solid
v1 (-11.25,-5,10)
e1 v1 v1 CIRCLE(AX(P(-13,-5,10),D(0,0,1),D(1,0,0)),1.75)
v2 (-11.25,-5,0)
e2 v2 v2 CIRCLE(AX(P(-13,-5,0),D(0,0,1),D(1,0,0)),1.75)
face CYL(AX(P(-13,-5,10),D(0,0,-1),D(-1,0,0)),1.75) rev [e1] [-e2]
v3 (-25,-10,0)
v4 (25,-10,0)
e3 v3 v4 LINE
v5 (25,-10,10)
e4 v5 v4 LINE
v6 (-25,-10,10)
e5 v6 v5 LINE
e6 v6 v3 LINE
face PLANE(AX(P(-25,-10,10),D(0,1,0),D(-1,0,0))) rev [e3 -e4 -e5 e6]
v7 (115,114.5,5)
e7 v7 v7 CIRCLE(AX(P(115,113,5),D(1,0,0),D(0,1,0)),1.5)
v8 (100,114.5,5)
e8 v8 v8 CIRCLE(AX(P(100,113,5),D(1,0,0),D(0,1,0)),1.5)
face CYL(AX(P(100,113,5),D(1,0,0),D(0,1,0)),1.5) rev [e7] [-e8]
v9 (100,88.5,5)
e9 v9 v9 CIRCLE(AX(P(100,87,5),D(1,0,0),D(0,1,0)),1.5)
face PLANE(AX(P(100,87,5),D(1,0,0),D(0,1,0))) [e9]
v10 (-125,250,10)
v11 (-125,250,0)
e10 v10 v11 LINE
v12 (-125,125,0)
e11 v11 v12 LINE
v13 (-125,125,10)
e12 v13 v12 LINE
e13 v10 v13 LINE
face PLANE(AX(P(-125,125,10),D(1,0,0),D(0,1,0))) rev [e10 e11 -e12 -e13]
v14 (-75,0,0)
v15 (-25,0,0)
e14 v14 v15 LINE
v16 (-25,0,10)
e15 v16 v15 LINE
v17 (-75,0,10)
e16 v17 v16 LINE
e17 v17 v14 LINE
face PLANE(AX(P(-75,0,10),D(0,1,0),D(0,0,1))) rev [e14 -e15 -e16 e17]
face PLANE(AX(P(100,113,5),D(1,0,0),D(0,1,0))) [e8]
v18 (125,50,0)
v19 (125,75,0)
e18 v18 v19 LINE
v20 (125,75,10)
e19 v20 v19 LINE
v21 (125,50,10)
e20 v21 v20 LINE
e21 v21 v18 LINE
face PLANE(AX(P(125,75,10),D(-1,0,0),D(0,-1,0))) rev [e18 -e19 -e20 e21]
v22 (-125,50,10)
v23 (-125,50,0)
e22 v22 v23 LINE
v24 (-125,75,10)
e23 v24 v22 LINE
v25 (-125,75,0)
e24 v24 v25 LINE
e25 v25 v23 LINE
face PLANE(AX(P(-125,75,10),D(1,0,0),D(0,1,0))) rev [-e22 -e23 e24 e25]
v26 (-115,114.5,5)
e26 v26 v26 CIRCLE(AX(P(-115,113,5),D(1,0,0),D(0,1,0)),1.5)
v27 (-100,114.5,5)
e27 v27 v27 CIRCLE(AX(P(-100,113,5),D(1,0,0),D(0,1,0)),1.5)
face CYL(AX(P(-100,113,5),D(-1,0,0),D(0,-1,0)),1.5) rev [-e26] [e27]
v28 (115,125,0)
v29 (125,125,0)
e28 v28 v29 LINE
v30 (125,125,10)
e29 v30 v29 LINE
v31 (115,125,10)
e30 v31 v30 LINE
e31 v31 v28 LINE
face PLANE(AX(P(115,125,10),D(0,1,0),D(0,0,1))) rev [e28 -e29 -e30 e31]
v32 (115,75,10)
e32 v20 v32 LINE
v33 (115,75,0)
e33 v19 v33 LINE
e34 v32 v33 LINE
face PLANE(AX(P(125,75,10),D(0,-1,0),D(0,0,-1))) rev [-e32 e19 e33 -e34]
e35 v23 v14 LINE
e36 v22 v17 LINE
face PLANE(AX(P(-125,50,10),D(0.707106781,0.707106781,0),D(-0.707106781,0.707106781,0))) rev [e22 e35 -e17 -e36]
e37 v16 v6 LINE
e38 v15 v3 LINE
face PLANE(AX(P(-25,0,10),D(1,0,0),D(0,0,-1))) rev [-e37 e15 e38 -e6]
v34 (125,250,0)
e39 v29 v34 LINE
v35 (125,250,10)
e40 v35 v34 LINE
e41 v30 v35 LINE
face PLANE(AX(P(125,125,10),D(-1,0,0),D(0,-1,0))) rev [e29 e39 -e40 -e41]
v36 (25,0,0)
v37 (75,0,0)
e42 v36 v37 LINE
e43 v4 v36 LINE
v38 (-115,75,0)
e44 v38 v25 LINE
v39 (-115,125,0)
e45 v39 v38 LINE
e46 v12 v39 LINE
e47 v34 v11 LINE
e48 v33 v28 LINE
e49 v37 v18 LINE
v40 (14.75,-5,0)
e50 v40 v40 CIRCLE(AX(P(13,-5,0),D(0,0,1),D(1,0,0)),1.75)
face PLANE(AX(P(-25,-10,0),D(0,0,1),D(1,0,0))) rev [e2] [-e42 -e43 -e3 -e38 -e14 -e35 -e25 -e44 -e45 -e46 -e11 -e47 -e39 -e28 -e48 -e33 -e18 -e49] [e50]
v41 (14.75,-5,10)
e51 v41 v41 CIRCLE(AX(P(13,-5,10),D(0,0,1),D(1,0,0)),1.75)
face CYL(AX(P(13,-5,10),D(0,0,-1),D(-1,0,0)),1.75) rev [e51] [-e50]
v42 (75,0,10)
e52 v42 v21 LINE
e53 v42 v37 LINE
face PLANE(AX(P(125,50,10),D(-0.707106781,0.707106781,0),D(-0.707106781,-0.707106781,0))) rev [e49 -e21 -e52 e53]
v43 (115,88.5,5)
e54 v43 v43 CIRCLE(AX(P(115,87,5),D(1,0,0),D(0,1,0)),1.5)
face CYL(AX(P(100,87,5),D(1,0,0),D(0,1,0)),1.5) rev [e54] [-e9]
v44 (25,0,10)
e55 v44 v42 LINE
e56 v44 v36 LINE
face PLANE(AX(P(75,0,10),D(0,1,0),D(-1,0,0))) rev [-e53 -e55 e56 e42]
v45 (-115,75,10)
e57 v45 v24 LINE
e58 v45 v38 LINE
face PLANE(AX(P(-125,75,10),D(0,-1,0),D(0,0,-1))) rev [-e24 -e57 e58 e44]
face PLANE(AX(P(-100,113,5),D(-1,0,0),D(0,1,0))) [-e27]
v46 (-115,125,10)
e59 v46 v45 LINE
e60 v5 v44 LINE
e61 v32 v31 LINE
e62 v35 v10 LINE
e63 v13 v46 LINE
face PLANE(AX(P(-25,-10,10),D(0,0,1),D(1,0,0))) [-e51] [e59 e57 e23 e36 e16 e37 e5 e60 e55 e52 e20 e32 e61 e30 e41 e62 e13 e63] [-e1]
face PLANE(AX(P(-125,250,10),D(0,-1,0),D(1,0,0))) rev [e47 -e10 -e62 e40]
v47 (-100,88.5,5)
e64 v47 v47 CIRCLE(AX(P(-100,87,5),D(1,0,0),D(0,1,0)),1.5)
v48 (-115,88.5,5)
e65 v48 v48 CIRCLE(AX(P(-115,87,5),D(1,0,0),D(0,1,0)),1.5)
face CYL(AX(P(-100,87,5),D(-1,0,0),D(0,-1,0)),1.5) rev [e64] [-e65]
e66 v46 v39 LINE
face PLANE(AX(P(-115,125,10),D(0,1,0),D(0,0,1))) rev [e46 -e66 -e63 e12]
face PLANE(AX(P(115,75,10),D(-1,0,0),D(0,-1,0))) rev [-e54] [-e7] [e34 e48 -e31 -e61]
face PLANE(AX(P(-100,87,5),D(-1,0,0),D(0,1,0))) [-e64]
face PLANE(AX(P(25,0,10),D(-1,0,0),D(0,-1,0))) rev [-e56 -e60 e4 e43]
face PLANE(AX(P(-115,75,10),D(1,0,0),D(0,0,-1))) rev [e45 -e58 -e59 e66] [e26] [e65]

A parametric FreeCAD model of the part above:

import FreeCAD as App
import Part
import Sketcher


def add_polygon(sketch, points):
    """Adds a closed chain of lines whose ends are joined by coincident constraints."""
    first, n = sketch.GeometryCount, len(points)
    for a, b in zip(points, points[1:] + points[:1]):
        sketch.addGeometry(Part.LineSegment(App.Vector(*a, 0), App.Vector(*b, 0)), False)
    for i in range(n):
        sketch.addConstraint(Sketcher.Constraint("Coincident", first + i, 2, first + (i + 1) % n, 1))

doc = App.newDocument("Part")
params = doc.addObject("Spreadsheet::Sheet", "Params")
for row, (alias, value) in enumerate([
    ("sketch1_diameter", "3.5 mm"),
    ("sketch1_width", "50 mm"),
    ("sketch1_width2", "10 mm"),
    ("sketch1_width3", "250 mm"),
    ("sketch1_height", "25 mm"),
    ("pad1_length", "10 mm"),
    ("sketch2_diameter", "3 mm"),
    ("pocket1_length", "15 mm"),
], start=1):
    params.set(f"A{row}", alias)
    params.set(f"B{row}", "=" + value)
    params.setAlias(f"B{row}", alias)

body = doc.addObject("PartDesign::Body", "Body")

# Sketch on XY plane
sketch1 = body.newObject("Sketcher::SketchObject", "Sketch")
sketch1.AttachmentSupport = (doc.getObject("XY_Plane"), [""])
sketch1.MapMode = "FlatFace"
add_polygon(sketch1, [(-125, 75), (-125, 50), (-75, 0), (-25, 0), (-25, -10), (25, -10), (25, 0), (75, 0), (125, 50), (125, 75), (115, 75), (115, 125), (125, 125), (125, 250), (-125, 250), (-125, 125), (-115, 125), (-115, 75)])  # lines 0-17
sketch1.addGeometry(Part.Circle(App.Vector(-13, -5, 0), App.Vector(0, 0, 1), 1.8), False)  # 18
sketch1.addGeometry(Part.Circle(App.Vector(13, -5, 0), App.Vector(0, 0, 1), 1.8), False)  # 19
sketch1.addConstraint([
    Sketcher.Constraint("Vertical", 0),
    Sketcher.Constraint("Horizontal", 2),
    Sketcher.Constraint("Vertical", 3),
    Sketcher.Constraint("Horizontal", 4),
    Sketcher.Constraint("Vertical", 5),
    Sketcher.Constraint("Horizontal", 6),
    Sketcher.Constraint("Vertical", 8),
    Sketcher.Constraint("Horizontal", 9),
    Sketcher.Constraint("Vertical", 10),
    Sketcher.Constraint("Horizontal", 11),
    Sketcher.Constraint("Vertical", 12),
    Sketcher.Constraint("Horizontal", 13),
    Sketcher.Constraint("Vertical", 14),
    Sketcher.Constraint("Horizontal", 15),
    Sketcher.Constraint("Vertical", 16),
    Sketcher.Constraint("Horizontal", 17),
    Sketcher.Constraint("Equal", 18, 19),
    Sketcher.Constraint("Symmetric", 2, 2, 5, 2, -1, 1),
    Sketcher.Constraint("Symmetric", 18, 3, 19, 3, -2),
    Sketcher.Constraint("Symmetric", 1, 2, 6, 2, -2),
    Sketcher.Constraint("Symmetric", 0, 2, 7, 2, -2),
    Sketcher.Constraint("Symmetric", 11, 2, 14, 2, -2),
    Sketcher.Constraint("Symmetric", 9, 2, 16, 2, -2),
    Sketcher.Constraint("Perpendicular", 1, 7),
    Sketcher.Constraint("Vertical", 8, 2, 11, 2),
    Sketcher.Constraint("Equal", 2, 4),
    Sketcher.Constraint("Equal", 17, 3),
    Sketcher.Constraint("Equal", 6, 10),
    Sketcher.Constraint("Diameter", 18, 3.5),
    Sketcher.Constraint("DistanceX", 2, 1, 2, 2, 50.0),
    Sketcher.Constraint("DistanceX", 9, 2, 9, 1, 10.0),
    Sketcher.Constraint("DistanceX", 13, 2, 13, 1, 250.0),
    Sketcher.Constraint("DistanceY", 0, 2, 0, 1, 25.0),
    Sketcher.Constraint("DistanceY", 12, 1, 12, 2, 125.0),
    Sketcher.Constraint("DistanceX", 18, 3, -1, 1, 13.0),
    Sketcher.Constraint("DistanceY", 18, 3, -1, 1, 5.0),
])
sketch1.setExpression("Constraints[46]", "Params.sketch1_diameter")
sketch1.setExpression("Constraints[47]", "Params.sketch1_width")
sketch1.setExpression("Constraints[48]", "Params.sketch1_width2")
sketch1.setExpression("Constraints[49]", "Params.sketch1_width3")
sketch1.setExpression("Constraints[50]", "Params.sketch1_height")
pad1 = body.newObject("PartDesign::Pad", "Pad")
pad1.Profile = sketch1
pad1.setExpression("Length", "Params.pad1_length")

# Sketch on YZ plane
sketch2 = body.newObject("Sketcher::SketchObject", "Sketch001")
sketch2.AttachmentSupport = (doc.getObject("YZ_Plane"), [""])
sketch2.MapMode = "FlatFace"
sketch2.AttachmentOffset = App.Placement(App.Vector(0, 0, 115), App.Rotation())
sketch2.addGeometry([
    Part.Circle(App.Vector(113, 5, 0), App.Vector(0, 0, 1), 1.5),
    Part.Circle(App.Vector(87, 5, 0), App.Vector(0, 0, 1), 1.5),
], False)
sketch2.addConstraint([
    Sketcher.Constraint("Equal", 0, 1),
    Sketcher.Constraint("Horizontal", 0, 3, 1, 3),
    Sketcher.Constraint("Diameter", 0, 3.0),
    Sketcher.Constraint("DistanceX", -1, 1, 0, 3, 113.0),
    Sketcher.Constraint("DistanceY", -1, 1, 0, 3, 5.0),
    Sketcher.Constraint("DistanceX", -1, 1, 1, 3, 87.0),
])
sketch2.setExpression("Constraints[2]", "Params.sketch2_diameter")
pocket1 = body.newObject("PartDesign::Pocket", "Pocket")
pocket1.Profile = sketch2
pocket1.setExpression("Length", "Params.pocket1_length")
doc.recompute()

mirrored = body.newObject("PartDesign::Mirrored", "Mirrored")
mirrored.Originals = [pocket1]
mirrored.MirrorPlane = (doc.getObject("YZ_Plane"), [""])
body.Tip = mirrored

doc.recompute()
